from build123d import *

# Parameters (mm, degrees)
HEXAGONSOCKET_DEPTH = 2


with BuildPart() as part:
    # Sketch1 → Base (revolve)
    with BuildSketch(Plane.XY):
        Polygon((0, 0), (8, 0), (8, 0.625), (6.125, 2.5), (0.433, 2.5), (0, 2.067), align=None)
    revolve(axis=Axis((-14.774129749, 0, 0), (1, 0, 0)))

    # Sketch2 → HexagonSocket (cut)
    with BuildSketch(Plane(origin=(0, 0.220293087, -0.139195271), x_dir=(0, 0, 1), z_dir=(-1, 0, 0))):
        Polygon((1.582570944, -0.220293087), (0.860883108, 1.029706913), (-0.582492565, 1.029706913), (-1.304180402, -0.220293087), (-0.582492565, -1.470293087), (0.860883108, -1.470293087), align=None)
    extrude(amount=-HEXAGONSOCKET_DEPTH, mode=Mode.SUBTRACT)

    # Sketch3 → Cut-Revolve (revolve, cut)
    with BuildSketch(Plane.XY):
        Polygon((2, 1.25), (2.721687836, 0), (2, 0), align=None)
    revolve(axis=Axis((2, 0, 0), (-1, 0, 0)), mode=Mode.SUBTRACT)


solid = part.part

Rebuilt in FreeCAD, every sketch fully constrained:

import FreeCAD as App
import Part
import Sketcher
Q = App.Units.Quantity

doc = App.newDocument("Part")
body = doc.addObject("PartDesign::Body", "Body")

# Sketch on XY plane
sketch1 = doc.addObject("Sketcher::SketchObject", "Sketch")
body.addObject(sketch1)
sketch1.AttachmentSupport = (doc.XY_Plane, [""])
sketch1.MapMode = "FlatFace"
sketch1.addGeometry([
    Part.LineSegment(App.Vector(0, 0, 0), App.Vector(8, 0, 0)),  # 0
    Part.LineSegment(App.Vector(8, 0, 0), App.Vector(8, 0.6, 0)),  # 1
    Part.LineSegment(App.Vector(8, 0.6, 0), App.Vector(6.1, 2.5, 0)),  # 2
    Part.LineSegment(App.Vector(6.1, 2.5, 0), App.Vector(0.4, 2.5, 0)),  # 3
    Part.LineSegment(App.Vector(0.4, 2.5, 0), App.Vector(0, 2.1, 0)),  # 4
    Part.LineSegment(App.Vector(0, 2.1, 0), App.Vector(0, 0, 0)),  # 5
], False)
sketch1.addConstraint([
    Sketcher.Constraint("Coincident", 0, 2, 1, 1),
    Sketcher.Constraint("Coincident", 1, 2, 2, 1),
    Sketcher.Constraint("Coincident", 2, 2, 3, 1),
    Sketcher.Constraint("Coincident", 3, 2, 4, 1),
    Sketcher.Constraint("Coincident", 4, 2, 5, 1),
    Sketcher.Constraint("Coincident", 5, 2, 0, 1),
    Sketcher.Constraint("Horizontal", 0),
    Sketcher.Constraint("Vertical", 1),
    Sketcher.Constraint("Horizontal", 3),
    Sketcher.Constraint("Vertical", 5),
    Sketcher.Constraint("Coincident", 5, 2, -1, 1),
    Sketcher.Constraint("Perpendicular", 2, 4),
    Sketcher.Constraint("DistanceX", 0, 1, 0, 2, 8.0),
    Sketcher.Constraint("Angle", 2, Q("135 deg")),
    Sketcher.Constraint("DistanceY", -1, 1, 2, 2, 2.5),
    Sketcher.Constraint("DistanceX", 3, 2, 3, 1, 5.692),
    Sketcher.Constraint("DistanceY", 1, 1, 1, 2, 0.625),
])
revolution = doc.addObject("PartDesign::Revolution", "Revolution")
body.addObject(revolution)
revolution.Profile = sketch1
revolution.ReferenceAxis = (sketch1, ["H_Axis"])
revolution.Angle = 360

# Sketch on YZ plane
sketch2 = doc.addObject("Sketcher::SketchObject", "Sketch001")
body.addObject(sketch2)
sketch2.AttachmentSupport = (doc.YZ_Plane, [""])
sketch2.MapMode = "FlatFace"
sketch2.addGeometry([
    Part.LineSegment(App.Vector(0, 1.4, 0), App.Vector(1.2, 0.7, 0)),  # 0
    Part.LineSegment(App.Vector(1.2, 0.7, 0), App.Vector(1.2, -0.7, 0)),  # 1
    Part.LineSegment(App.Vector(1.2, -0.7, 0), App.Vector(0, -1.4, 0)),  # 2
    Part.LineSegment(App.Vector(0, -1.4, 0), App.Vector(-1.2, -0.7, 0)),  # 3
    Part.LineSegment(App.Vector(-1.2, -0.7, 0), App.Vector(-1.2, 0.7, 0)),  # 4
    Part.LineSegment(App.Vector(-1.2, 0.7, 0), App.Vector(0, 1.4, 0)),  # 5
], False)
sketch2.addConstraint([
    Sketcher.Constraint("Coincident", 0, 2, 1, 1),
    Sketcher.Constraint("Coincident", 1, 2, 2, 1),
    Sketcher.Constraint("Coincident", 2, 2, 3, 1),
    Sketcher.Constraint("Coincident", 3, 2, 4, 1),
    Sketcher.Constraint("Coincident", 4, 2, 5, 1),
    Sketcher.Constraint("Coincident", 5, 2, 0, 1),
    Sketcher.Constraint("Vertical", 1),
    Sketcher.Constraint("Vertical", 4),
    Sketcher.Constraint("Symmetric", 0, 2, 3, 2, -1, 1),
    Sketcher.Constraint("Symmetric", 2, 2, 5, 2, -1, 1),
    Sketcher.Constraint("PointOnObject", 2, 2, -2),
    Sketcher.Constraint("Parallel", 2, 5),
    Sketcher.Constraint("Horizontal", 1, 2, 3, 2),
    Sketcher.Constraint("Angle", 0, Q("-30 deg")),
    Sketcher.Constraint("DistanceX", 3, 2, 1, 2, 2.5),
    Sketcher.Constraint("DistanceY", 1, 2, 1, 1, 1.443376),
])
pocket1 = doc.addObject("PartDesign::Pocket", "Pocket")
body.addObject(pocket1)
pocket1.Profile = sketch2
pocket1.Length = 2
pocket1.Reversed = True

# Sketch on XY plane
sketch3 = doc.addObject("Sketcher::SketchObject", "Sketch002")
body.addObject(sketch3)
sketch3.AttachmentSupport = (doc.XY_Plane, [""])
sketch3.MapMode = "FlatFace"
sketch3.addGeometry([
    Part.LineSegment(App.Vector(2.7, 0, 0), App.Vector(2, 1.2, 0)),
    Part.LineSegment(App.Vector(2, 1.2, 0), App.Vector(2, 0, 0)),
    Part.LineSegment(App.Vector(2, 0, 0), App.Vector(2.7, 0, 0)),
], False)
sketch3.addConstraint([
    Sketcher.Constraint("Coincident", 0, 2, 1, 1),
    Sketcher.Constraint("Coincident", 1, 2, 2, 1),
    Sketcher.Constraint("Coincident", 2, 2, 0, 1),
    Sketcher.Constraint("Vertical", 1),
    Sketcher.Constraint("Horizontal", 2),
    Sketcher.Constraint("PointOnObject", 1, 2, -1),
    Sketcher.Constraint("Angle", 0, Q("120 deg")),
    Sketcher.Constraint("DistanceX", -1, 1, 0, 2, 2.0),
    Sketcher.Constraint("DistanceY", 1, 2, 1, 1, 1.25),
])
groove = doc.addObject("PartDesign::Groove", "Groove")
body.addObject(groove)
groove.Profile = sketch3
groove.ReferenceAxis = (sketch3, ["H_Axis"])
groove.Angle = 360

doc.recompute()
